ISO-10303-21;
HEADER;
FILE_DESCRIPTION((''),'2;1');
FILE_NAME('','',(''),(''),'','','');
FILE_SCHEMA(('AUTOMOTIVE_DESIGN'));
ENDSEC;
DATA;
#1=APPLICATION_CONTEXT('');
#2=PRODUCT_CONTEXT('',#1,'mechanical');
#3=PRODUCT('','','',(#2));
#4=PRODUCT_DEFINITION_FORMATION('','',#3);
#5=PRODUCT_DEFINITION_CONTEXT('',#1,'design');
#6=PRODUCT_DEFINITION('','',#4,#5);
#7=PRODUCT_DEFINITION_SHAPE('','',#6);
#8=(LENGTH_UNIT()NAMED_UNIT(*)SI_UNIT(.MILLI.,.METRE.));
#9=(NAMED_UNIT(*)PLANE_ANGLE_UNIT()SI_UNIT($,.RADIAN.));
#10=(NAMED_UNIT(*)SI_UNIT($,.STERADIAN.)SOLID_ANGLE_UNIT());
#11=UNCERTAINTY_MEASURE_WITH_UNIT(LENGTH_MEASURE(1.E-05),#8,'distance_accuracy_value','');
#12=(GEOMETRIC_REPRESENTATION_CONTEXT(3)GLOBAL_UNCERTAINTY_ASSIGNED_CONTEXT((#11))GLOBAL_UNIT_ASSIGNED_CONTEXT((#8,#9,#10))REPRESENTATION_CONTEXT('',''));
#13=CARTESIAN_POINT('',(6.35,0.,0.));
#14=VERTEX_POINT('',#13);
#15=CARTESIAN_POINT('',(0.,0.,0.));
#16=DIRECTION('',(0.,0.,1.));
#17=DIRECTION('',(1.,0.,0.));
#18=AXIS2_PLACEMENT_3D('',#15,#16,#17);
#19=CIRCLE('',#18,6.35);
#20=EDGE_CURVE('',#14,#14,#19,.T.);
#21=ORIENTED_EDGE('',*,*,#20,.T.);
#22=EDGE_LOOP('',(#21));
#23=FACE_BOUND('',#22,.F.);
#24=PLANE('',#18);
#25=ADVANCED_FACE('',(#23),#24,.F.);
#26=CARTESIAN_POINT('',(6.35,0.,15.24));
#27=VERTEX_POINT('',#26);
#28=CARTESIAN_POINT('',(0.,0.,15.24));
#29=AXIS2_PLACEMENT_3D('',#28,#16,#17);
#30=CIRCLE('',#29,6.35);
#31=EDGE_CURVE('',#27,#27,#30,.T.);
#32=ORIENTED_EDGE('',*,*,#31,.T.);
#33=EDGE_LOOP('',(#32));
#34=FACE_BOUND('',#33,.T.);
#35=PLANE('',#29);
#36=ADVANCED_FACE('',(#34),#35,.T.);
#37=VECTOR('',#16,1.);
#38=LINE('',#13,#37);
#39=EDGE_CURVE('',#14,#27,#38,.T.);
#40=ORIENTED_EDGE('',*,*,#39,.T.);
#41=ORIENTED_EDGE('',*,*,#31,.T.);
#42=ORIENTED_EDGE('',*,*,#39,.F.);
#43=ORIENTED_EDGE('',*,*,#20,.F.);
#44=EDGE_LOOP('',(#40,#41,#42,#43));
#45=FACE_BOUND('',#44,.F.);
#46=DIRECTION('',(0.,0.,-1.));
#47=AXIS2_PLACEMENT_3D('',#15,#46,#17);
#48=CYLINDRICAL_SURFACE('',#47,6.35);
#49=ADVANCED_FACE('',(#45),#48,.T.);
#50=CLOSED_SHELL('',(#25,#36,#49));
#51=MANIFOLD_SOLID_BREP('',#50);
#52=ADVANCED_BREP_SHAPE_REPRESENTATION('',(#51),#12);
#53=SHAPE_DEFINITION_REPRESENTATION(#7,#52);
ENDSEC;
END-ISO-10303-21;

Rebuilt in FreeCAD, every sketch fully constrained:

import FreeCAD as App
import Part
import Sketcher

V = App.Vector
Q = App.Units.Quantity

doc = App.newDocument("Part")
body = doc.addObject("PartDesign::Body", "Body")

# Sketch on XY plane
sketch1 = body.newObject("Sketcher::SketchObject", "Sketch")
sketch1.AttachmentSupport = (doc.getObject("XY_Plane"), [""])
sketch1.MapMode = "FlatFace"
sketch1.addGeometry(Part.Circle(V(0, 0, 0), V(0, 0, 1), 6), False)
sketch1.addConstraint([
    Sketcher.Constraint("Coincident", 0, 3, -1, 1),
    Sketcher.Constraint("Diameter", 0, Q("0.5 in")),
])
pad1 = body.newObject("PartDesign::Pad", "Pad")
pad1.Profile = sketch1
pad1.Length = Q("0.6 in")

doc.recompute()
